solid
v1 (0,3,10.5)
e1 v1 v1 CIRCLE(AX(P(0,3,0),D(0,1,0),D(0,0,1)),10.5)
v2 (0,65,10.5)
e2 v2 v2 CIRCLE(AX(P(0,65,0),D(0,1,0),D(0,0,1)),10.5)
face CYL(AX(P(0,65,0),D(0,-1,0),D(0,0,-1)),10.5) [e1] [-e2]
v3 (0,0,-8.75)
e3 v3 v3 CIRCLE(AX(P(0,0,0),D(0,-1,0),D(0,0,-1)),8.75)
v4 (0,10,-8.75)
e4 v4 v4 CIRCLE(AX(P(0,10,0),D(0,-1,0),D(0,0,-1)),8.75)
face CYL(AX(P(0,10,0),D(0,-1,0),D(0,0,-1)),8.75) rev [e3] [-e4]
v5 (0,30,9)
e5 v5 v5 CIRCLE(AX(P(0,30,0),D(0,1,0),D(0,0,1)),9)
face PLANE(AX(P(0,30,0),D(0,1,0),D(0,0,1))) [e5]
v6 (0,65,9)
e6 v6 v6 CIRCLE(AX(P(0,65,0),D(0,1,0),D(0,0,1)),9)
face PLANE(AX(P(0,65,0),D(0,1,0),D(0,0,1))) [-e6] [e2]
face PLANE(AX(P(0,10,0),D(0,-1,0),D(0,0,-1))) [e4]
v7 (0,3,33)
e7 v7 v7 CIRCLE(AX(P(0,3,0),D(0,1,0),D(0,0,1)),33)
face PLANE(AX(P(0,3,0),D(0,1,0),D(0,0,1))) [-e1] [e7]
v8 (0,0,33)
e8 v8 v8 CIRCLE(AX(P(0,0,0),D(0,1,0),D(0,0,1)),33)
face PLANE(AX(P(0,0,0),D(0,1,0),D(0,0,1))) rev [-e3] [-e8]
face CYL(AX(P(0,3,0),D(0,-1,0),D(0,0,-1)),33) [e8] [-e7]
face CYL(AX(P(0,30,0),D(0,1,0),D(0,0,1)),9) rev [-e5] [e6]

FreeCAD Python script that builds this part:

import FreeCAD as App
import Part
import Sketcher
Q = App.Units.Quantity

doc = App.newDocument("Part")
body = doc.addObject("PartDesign::Body", "Body")

# Sketch on XZ plane
sketch1 = doc.addObject("Sketcher::SketchObject", "Sketch")
body.addObject(sketch1)
sketch1.AttachmentSupport = (doc.XZ_Plane, [""])
sketch1.MapMode = "FlatFace"
sketch1.addGeometry(Part.Circle(App.Vector(0, 0, 0), App.Vector(0, 0, 1), 33), False)
sketch1.addConstraint(Sketcher.Constraint("Coincident", 0, 3, -1, 1))
sketch1.addConstraint(Sketcher.Constraint("Diameter", 0, Q("66 mm")))
pad1 = doc.addObject("PartDesign::Pad", "Pad")
body.addObject(pad1)
pad1.Profile = sketch1
pad1.Length = 3
pad1.Reversed = True

# Sketch on XZ plane
sketch2 = doc.addObject("Sketcher::SketchObject", "Sketch001")
body.addObject(sketch2)
sketch2.AttachmentSupport = (doc.XZ_Plane, [""])
sketch2.MapMode = "FlatFace"
sketch2.AttachmentOffset = App.Placement(App.Vector(0, 0, -3), App.Rotation())
sketch2.addGeometry(Part.Circle(App.Vector(0, 0, 0), App.Vector(0, 0, 1), 10.5), False)
sketch2.addConstraint(Sketcher.Constraint("Coincident", 0, 3, -1, 1))
sketch2.addConstraint(Sketcher.Constraint("Diameter", 0, Q("21 mm")))
pad2 = doc.addObject("PartDesign::Pad", "Pad001")
body.addObject(pad2)
pad2.Profile = sketch2
pad2.Length = 62
pad2.Reversed = True

# Sketch on XZ plane
sketch3 = doc.addObject("Sketcher::SketchObject", "Sketch002")
body.addObject(sketch3)
sketch3.AttachmentSupport = (doc.XZ_Plane, [""])
sketch3.MapMode = "FlatFace"
sketch3.addGeometry(Part.Circle(App.Vector(0, 0, 0), App.Vector(0, 0, 1), 8.75), False)
sketch3.addConstraint(Sketcher.Constraint("Coincident", 0, 3, -1, 1))
sketch3.addConstraint(Sketcher.Constraint("Diameter", 0, Q("17.5 mm")))
pocket1 = doc.addObject("PartDesign::Pocket", "Pocket")
body.addObject(pocket1)
pocket1.Profile = sketch3
pocket1.Length = 10

# Sketch on XZ plane
sketch4 = doc.addObject("Sketcher::SketchObject", "Sketch003")
body.addObject(sketch4)
sketch4.AttachmentSupport = (doc.XZ_Plane, [""])
sketch4.MapMode = "FlatFace"
sketch4.AttachmentOffset = App.Placement(App.Vector(0, 0, -65), App.Rotation())
sketch4.addGeometry(Part.Circle(App.Vector(0, 0, 0), App.Vector(0, 0, 1), 9), False)
sketch4.addConstraint(Sketcher.Constraint("Coincident", 0, 3, -1, 1))
sketch4.addConstraint(Sketcher.Constraint("Diameter", 0, Q("18 mm")))
pocket2 = doc.addObject("PartDesign::Pocket", "Pocket001")
body.addObject(pocket2)
pocket2.Profile = sketch4
pocket2.Length = 35
pocket2.Reversed = True

doc.recompute()
